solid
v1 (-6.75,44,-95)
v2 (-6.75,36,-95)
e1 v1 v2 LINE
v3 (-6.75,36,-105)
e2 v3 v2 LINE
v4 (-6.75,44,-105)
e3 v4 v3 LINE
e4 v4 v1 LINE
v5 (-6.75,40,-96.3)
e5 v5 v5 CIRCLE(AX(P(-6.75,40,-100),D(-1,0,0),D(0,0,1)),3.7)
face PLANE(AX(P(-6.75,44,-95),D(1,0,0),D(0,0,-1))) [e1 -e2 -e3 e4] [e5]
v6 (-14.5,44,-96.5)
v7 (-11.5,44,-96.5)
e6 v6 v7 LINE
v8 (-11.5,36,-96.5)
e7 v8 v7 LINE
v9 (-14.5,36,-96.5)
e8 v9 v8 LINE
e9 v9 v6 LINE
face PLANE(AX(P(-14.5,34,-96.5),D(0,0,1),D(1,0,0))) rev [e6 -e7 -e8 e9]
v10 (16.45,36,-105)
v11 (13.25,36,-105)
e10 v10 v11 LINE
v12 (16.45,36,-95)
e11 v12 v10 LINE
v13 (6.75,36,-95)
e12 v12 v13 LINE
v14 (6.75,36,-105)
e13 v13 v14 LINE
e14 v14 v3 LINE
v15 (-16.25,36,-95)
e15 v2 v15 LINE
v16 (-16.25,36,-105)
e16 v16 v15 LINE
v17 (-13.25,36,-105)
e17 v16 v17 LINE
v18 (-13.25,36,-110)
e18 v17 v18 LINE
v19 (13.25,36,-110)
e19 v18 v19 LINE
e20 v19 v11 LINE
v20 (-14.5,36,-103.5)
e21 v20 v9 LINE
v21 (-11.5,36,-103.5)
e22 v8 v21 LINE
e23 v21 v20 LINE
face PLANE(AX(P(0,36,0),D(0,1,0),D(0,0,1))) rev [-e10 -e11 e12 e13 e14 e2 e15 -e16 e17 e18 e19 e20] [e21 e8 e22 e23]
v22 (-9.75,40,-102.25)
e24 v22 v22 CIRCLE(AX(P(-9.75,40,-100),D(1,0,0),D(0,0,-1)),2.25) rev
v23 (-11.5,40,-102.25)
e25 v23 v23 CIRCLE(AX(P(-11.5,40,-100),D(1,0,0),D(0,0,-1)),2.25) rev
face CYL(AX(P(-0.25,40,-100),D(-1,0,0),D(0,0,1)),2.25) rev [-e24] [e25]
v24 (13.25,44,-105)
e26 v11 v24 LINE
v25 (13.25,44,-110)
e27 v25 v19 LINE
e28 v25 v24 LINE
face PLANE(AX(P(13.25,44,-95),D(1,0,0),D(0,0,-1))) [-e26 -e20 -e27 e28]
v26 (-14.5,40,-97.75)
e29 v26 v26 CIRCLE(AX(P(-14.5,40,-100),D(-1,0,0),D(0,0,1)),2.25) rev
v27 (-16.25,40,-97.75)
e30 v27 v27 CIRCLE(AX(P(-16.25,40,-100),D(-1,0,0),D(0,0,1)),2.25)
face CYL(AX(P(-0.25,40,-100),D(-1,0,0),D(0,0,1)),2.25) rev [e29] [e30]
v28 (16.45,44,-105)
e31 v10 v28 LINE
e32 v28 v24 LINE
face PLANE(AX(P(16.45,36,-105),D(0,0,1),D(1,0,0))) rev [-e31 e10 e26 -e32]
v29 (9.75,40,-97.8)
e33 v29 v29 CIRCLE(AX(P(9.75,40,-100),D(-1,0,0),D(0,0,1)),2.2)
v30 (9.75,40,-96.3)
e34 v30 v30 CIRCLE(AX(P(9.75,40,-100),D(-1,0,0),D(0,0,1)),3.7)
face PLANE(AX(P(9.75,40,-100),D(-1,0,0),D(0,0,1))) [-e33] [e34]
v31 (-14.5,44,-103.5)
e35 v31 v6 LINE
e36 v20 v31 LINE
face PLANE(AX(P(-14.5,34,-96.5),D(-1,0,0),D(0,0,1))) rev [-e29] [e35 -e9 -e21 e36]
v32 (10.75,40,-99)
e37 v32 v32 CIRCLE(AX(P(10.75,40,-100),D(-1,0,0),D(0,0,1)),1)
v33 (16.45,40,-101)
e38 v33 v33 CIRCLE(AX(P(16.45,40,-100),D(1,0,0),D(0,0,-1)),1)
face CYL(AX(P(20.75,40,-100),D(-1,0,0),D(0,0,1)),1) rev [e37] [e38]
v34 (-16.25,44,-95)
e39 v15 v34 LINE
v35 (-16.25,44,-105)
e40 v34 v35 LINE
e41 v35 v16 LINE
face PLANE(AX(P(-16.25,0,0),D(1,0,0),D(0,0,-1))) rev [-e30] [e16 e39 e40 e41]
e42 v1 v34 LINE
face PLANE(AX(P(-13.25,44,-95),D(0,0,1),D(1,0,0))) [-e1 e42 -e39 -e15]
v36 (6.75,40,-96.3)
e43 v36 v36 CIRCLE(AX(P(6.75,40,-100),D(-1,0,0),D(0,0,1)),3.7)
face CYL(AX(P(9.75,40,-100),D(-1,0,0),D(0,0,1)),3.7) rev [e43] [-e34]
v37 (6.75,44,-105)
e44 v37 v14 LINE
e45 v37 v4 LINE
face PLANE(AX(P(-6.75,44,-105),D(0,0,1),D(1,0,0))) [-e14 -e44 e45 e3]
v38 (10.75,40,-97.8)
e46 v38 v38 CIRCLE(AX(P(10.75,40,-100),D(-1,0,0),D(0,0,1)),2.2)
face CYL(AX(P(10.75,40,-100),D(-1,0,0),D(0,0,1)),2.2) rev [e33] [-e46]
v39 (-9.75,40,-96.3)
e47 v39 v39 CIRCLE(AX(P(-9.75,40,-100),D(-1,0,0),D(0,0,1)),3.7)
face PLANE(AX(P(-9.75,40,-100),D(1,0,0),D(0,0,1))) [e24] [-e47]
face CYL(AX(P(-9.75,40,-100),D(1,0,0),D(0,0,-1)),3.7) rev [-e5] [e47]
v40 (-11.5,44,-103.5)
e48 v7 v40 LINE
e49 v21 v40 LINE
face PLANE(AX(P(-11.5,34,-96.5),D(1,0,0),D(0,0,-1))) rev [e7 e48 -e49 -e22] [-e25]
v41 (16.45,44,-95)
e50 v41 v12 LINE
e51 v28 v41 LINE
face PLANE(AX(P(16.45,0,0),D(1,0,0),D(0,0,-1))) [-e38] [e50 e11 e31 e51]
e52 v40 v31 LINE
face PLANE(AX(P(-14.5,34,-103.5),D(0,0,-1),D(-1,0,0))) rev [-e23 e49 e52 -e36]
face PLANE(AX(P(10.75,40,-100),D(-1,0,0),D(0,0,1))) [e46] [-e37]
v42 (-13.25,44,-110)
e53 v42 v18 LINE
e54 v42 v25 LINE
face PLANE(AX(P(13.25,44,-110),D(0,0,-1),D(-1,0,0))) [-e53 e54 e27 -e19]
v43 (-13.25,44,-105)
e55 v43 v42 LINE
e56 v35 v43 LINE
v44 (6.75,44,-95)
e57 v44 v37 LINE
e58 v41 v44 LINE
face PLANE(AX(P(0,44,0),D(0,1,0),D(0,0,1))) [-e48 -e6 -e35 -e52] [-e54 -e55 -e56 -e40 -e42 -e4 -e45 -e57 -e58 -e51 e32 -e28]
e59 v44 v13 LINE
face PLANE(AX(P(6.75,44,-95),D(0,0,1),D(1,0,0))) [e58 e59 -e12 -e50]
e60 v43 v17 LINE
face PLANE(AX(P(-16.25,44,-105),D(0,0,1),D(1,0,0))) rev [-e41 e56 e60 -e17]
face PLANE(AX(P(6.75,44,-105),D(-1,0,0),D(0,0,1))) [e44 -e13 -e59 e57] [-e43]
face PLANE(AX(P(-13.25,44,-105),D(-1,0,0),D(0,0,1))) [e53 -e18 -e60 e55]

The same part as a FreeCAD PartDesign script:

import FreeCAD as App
import Part
import Sketcher
from FreeCAD import Vector

doc = App.newDocument("Part")
body = doc.addObject("PartDesign::Body", "Body")

# Sketch on XZ plane
sketch1 = doc.addObject("Sketcher::SketchObject", "Sketch")
body.addObject(sketch1)
sketch1.AttachmentSupport = (doc.XZ_Plane, [""])
sketch1.MapMode = "FlatFace"
sketch1.AttachmentOffset = App.Placement(Vector(0, 0, -40), App.Rotation())
sketch1.addGeometry([
    Part.LineSegment(Vector(-13.25, -95, 0), Vector(-13.25, -110, 0)),  # 0
    Part.LineSegment(Vector(-13.25, -110, 0), Vector(13.25, -110, 0)),  # 1
    Part.LineSegment(Vector(13.25, -110, 0), Vector(13.25, -95, 0)),  # 2
    Part.LineSegment(Vector(13.25, -95, 0), Vector(6.75, -95, 0)),  # 3
    Part.LineSegment(Vector(6.75, -95, 0), Vector(6.75, -105, 0)),  # 4
    Part.LineSegment(Vector(6.75, -105, 0), Vector(-6.75, -105, 0)),  # 5
    Part.LineSegment(Vector(-6.75, -105, 0), Vector(-6.75, -95, 0)),  # 6
    Part.LineSegment(Vector(-6.75, -95, 0), Vector(-13.25, -95, 0)),  # 7
], False)
sketch1.addConstraint([
    Sketcher.Constraint("Coincident", 0, 2, 1, 1),
    Sketcher.Constraint("Coincident", 1, 2, 2, 1),
    Sketcher.Constraint("Coincident", 2, 2, 3, 1),
    Sketcher.Constraint("Coincident", 3, 2, 4, 1),
    Sketcher.Constraint("Coincident", 4, 2, 5, 1),
    Sketcher.Constraint("Coincident", 5, 2, 6, 1),
    Sketcher.Constraint("Coincident", 6, 2, 7, 1),
    Sketcher.Constraint("Coincident", 7, 2, 0, 1),
    Sketcher.Constraint("Vertical", 0),
    Sketcher.Constraint("Horizontal", 1),
    Sketcher.Constraint("Vertical", 2),
    Sketcher.Constraint("Horizontal", 3),
    Sketcher.Constraint("Vertical", 4),
    Sketcher.Constraint("Horizontal", 5),
    Sketcher.Constraint("Vertical", 6),
    Sketcher.Constraint("Horizontal", 7),
    Sketcher.Constraint("Symmetric", 3, 2, 6, 2, -2),
    Sketcher.Constraint("Equal", 3, 7),
    Sketcher.Constraint("DistanceY", 0, 2, 0, 1, 15.0),
    Sketcher.Constraint("DistanceY", 4, 2, 4, 1, 10.0),
    Sketcher.Constraint("DistanceX", 1, 1, 1, 2, 26.5),
    Sketcher.Constraint("DistanceX", 3, 2, 3, 1, 6.5),
    Sketcher.Constraint("DistanceY", 0, 2, -1, 1, 110.0),
])
pad1 = doc.addObject("PartDesign::Pad", "Pad")
body.addObject(pad1)
pad1.Profile = sketch1
pad1.Type = "TwoLengths"
pad1.Length = 4
pad1.Length2 = 4

# Sketch on YZ plane
sketch2 = doc.addObject("Sketcher::SketchObject", "Sketch001")
body.addObject(sketch2)
sketch2.AttachmentSupport = (doc.YZ_Plane, [""])
sketch2.MapMode = "FlatFace"
sketch2.AttachmentOffset = App.Placement(Vector(0, 0, -13.25), App.Rotation())
sketch2.addGeometry(Part.Circle(Vector(40, -100, 0), Vector(0, 0, 1), 2.25), False)
sketch2.addConstraint([
    Sketcher.Constraint("Diameter", 0, 4.5),
    Sketcher.Constraint("DistanceX", -1, 1, 0, 3, 40.0),
    Sketcher.Constraint("DistanceY", 0, 3, -1, 1, 100.0),
])
pocket1 = doc.addObject("PartDesign::Pocket", "Pocket")
body.addObject(pocket1)
pocket1.Profile = sketch2
pocket1.Length = 13
pocket1.Reversed = True

# Sketch on YZ plane
sketch3 = doc.addObject("Sketcher::SketchObject", "Sketch002")
body.addObject(sketch3)
sketch3.AttachmentSupport = (doc.YZ_Plane, [""])
sketch3.MapMode = "FlatFace"
sketch3.AttachmentOffset = App.Placement(Vector(0, 0, 6.75), App.Rotation())
sketch3.addGeometry(Part.Circle(Vector(40, -100, 0), Vector(0, 0, 1), 3.7), False)
sketch3.addConstraint([
    Sketcher.Constraint("Diameter", 0, 7.4),
    Sketcher.Constraint("DistanceX", -1, 1, 0, 3, 40.0),
    Sketcher.Constraint("DistanceY", 0, 3, -1, 1, 100.0),
])
pocket2 = doc.addObject("PartDesign::Pocket", "Pocket001")
body.addObject(pocket2)
pocket2.Profile = sketch3
pocket2.Length = 3
pocket2.Reversed = True
doc.recompute()

mirrored = doc.addObject("PartDesign::Mirrored", "Mirrored")
body.addObject(mirrored)
mirrored.Originals = [pocket2]
mirrored.MirrorPlane = (doc.YZ_Plane, [""])
body.Tip = mirrored

# Sketch on YZ plane
sketch4 = doc.addObject("Sketcher::SketchObject", "Sketch003")
body.addObject(sketch4)
sketch4.AttachmentSupport = (doc.YZ_Plane, [""])
sketch4.MapMode = "FlatFace"
sketch4.AttachmentOffset = App.Placement(Vector(0, 0, 9.75), App.Rotation())
sketch4.addGeometry(Part.Circle(Vector(40, -100, 0), Vector(0, 0, 1), 2.2), False)
sketch4.addConstraint([
    Sketcher.Constraint("Diameter", 0, 4.4),
    Sketcher.Constraint("DistanceX", -1, 1, 0, 3, 40.0),
    Sketcher.Constraint("DistanceY", 0, 3, -1, 1, 100.0),
])
pocket3 = doc.addObject("PartDesign::Pocket", "Pocket002")
body.addObject(pocket3)
pocket3.Profile = sketch4
pocket3.Length = 1
pocket3.Reversed = True

# Sketch on YZ plane
sketch5 = doc.addObject("Sketcher::SketchObject", "Sketch004")
body.addObject(sketch5)
sketch5.AttachmentSupport = (doc.YZ_Plane, [""])
sketch5.MapMode = "FlatFace"
sketch5.AttachmentOffset = App.Placement(Vector(0, 0, -16.25), App.Rotation())
sketch5.addGeometry([
    Part.LineSegment(Vector(44, -105, 0), Vector(36, -105, 0)),  # 0
    Part.LineSegment(Vector(36, -105, 0), Vector(36, -95, 0)),  # 1
    Part.LineSegment(Vector(36, -95, 0), Vector(44, -95, 0)),  # 2
    Part.LineSegment(Vector(44, -95, 0), Vector(44, -105, 0)),  # 3
    Part.Circle(Vector(40, -100, 0), Vector(0, 0, 1), 2.25),  # 4
], False)
sketch5.addConstraint([
    Sketcher.Constraint("Coincident", 0, 2, 1, 1),
    Sketcher.Constraint("Coincident", 1, 2, 2, 1),
    Sketcher.Constraint("Coincident", 2, 2, 3, 1),
    Sketcher.Constraint("Coincident", 3, 2, 0, 1),
    Sketcher.Constraint("Horizontal", 0),
    Sketcher.Constraint("Vertical", 1),
    Sketcher.Constraint("Horizontal", 2),
    Sketcher.Constraint("Vertical", 3),
    Sketcher.Constraint("Diameter", 4, 4.5),
    Sketcher.Constraint("DistanceX", 0, 2, 0, 1, 8.0),
    Sketcher.Constraint("DistanceY", 1, 1, 1, 2, 10.0),
    Sketcher.Constraint("DistanceX", -1, 1, 4, 3, 40.0),
    Sketcher.Constraint("DistanceY", 4, 3, -1, 1, 100.0),
    Sketcher.Constraint("DistanceX", -1, 1, 0, 2, 36.0),
    Sketcher.Constraint("DistanceY", 0, 2, -1, 1, 105.0),
])
pad2 = doc.addObject("PartDesign::Pad", "Pad001")
body.addObject(pad2)
pad2.Profile = sketch5
pad2.Length = 3

# Sketch on XZ plane
sketch6 = doc.addObject("Sketcher::SketchObject", "Sketch005")
body.addObject(sketch6)
sketch6.AttachmentSupport = (doc.XZ_Plane, [""])
sketch6.MapMode = "FlatFace"
sketch6.AttachmentOffset = App.Placement(Vector(0, 0, -44), App.Rotation())
sketch6.addGeometry([
    Part.LineSegment(Vector(-14.5, -103.5, 0), Vector(-14.5, -96.5, 0)),
    Part.LineSegment(Vector(-14.5, -96.5, 0), Vector(-11.5, -96.5, 0)),
    Part.LineSegment(Vector(-11.5, -96.5, 0), Vector(-11.5, -103.5, 0)),
    Part.LineSegment(Vector(-11.5, -103.5, 0), Vector(-14.5, -103.5, 0)),
], False)
sketch6.addConstraint([
    Sketcher.Constraint("Coincident", 0, 2, 1, 1),
    Sketcher.Constraint("Coincident", 1, 2, 2, 1),
    Sketcher.Constraint("Coincident", 2, 2, 3, 1),
    Sketcher.Constraint("Coincident", 3, 2, 0, 1),
    Sketcher.Constraint("Vertical", 0),
    Sketcher.Constraint("Horizontal", 1),
    Sketcher.Constraint("Vertical", 2),
    Sketcher.Constraint("Horizontal", 3),
    Sketcher.Constraint("DistanceX", 1, 1, 1, 2, 3.0),
    Sketcher.Constraint("DistanceY", 0, 1, 0, 2, 7.0),
    Sketcher.Constraint("DistanceX", 0, 2, -1, 1, 14.5),
    Sketcher.Constraint("DistanceY", 0, 2, -1, 1, 96.5),
])
pocket4 = doc.addObject("PartDesign::Pocket", "Pocket003")
body.addObject(pocket4)
pocket4.Profile = sketch6
pocket4.Length = 10
pocket4.Reversed = True

# Sketch on YZ plane
sketch7 = doc.addObject("Sketcher::SketchObject", "Sketch006")
body.addObject(sketch7)
sketch7.AttachmentSupport = (doc.YZ_Plane, [""])
sketch7.MapMode = "FlatFace"
sketch7.AttachmentOffset = App.Placement(Vector(0, 0, 13.25), App.Rotation())
sketch7.addGeometry([
    Part.LineSegment(Vector(44, -95, 0), Vector(36, -95, 0)),
    Part.LineSegment(Vector(36, -95, 0), Vector(36, -105, 0)),
    Part.LineSegment(Vector(36, -105, 0), Vector(44, -105, 0)),
    Part.LineSegment(Vector(44, -105, 0), Vector(44, -95, 0)),
], False)
sketch7.addConstraint([
    Sketcher.Constraint("Coincident", 0, 2, 1, 1),
    Sketcher.Constraint("Coincident", 1, 2, 2, 1),
    Sketcher.Constraint("Coincident", 2, 2, 3, 1),
    Sketcher.Constraint("Coincident", 3, 2, 0, 1),
    Sketcher.Constraint("Horizontal", 0),
    Sketcher.Constraint("Vertical", 1),
    Sketcher.Constraint("Horizontal", 2),
    Sketcher.Constraint("Vertical", 3),
    Sketcher.Constraint("DistanceX", 0, 2, 0, 1, 8.0),
    Sketcher.Constraint("DistanceY", 1, 2, 1, 1, 10.0),
    Sketcher.Constraint("DistanceX", -1, 1, 0, 2, 36.0),
    Sketcher.Constraint("DistanceY", 0, 2, -1, 1, 95.0),
])
pad3 = doc.addObject("PartDesign::Pad", "Pad002")
body.addObject(pad3)
pad3.Profile = sketch7
pad3.Length = 3.2

# Sketch on YZ plane
sketch8 = doc.addObject("Sketcher::SketchObject", "Sketch007")
body.addObject(sketch8)
sketch8.AttachmentSupport = (doc.YZ_Plane, [""])
sketch8.MapMode = "FlatFace"
sketch8.AttachmentOffset = App.Placement(Vector(0, 0, 10.75), App.Rotation())
sketch8.addGeometry(Part.Circle(Vector(40, -100, 0), Vector(0, 0, 1), 1), False)
sketch8.addConstraint([
    Sketcher.Constraint("Diameter", 0, 2.0),
    Sketcher.Constraint("DistanceX", -1, 1, 0, 3, 40.0),
    Sketcher.Constraint("DistanceY", 0, 3, -1, 1, 100.0),
])
pocket5 = doc.addObject("PartDesign::Pocket", "Pocket004")
body.addObject(pocket5)
pocket5.Profile = sketch8
pocket5.Length = 10
pocket5.Reversed = True

doc.recompute()
